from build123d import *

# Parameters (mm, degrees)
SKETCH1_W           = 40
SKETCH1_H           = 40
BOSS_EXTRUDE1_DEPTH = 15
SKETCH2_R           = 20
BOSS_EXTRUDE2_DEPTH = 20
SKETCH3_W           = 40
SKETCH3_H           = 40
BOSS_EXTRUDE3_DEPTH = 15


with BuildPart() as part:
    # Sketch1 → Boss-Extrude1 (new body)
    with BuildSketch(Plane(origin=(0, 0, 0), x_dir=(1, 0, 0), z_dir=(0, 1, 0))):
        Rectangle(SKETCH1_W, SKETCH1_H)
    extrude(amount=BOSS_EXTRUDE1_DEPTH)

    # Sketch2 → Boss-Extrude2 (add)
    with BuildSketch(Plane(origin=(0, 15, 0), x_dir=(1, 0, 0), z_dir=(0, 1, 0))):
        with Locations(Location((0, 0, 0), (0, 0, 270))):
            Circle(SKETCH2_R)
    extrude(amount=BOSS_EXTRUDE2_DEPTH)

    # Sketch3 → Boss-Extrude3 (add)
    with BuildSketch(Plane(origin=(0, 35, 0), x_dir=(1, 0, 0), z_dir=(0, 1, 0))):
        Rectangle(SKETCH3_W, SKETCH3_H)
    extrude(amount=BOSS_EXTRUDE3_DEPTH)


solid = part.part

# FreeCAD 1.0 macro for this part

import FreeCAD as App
import Part
import Sketcher
from FreeCAD import Vector


def add_polygon(sketch, points):
    """Adds a closed chain of lines whose ends are joined by coincident constraints."""
    first, n = sketch.GeometryCount, len(points)
    for a, b in zip(points, points[1:] + points[:1]):
        sketch.addGeometry(Part.LineSegment(App.Vector(*a, 0), App.Vector(*b, 0)), False)
    for i in range(n):
        sketch.addConstraint(Sketcher.Constraint("Coincident", first + i, 2, first + (i + 1) % n, 1))

doc = App.newDocument("Part")
body = doc.addObject("PartDesign::Body", "Body")

sketch1 = body.newObject("Sketcher::SketchObject", "Sketch")
sketch1.AttachmentSupport = (doc.getObject("XZ_Plane"), [""])
sketch1.MapMode = "FlatFace"
add_polygon(sketch1, [(-20, -20), (-20, 20), (20, 20), (20, -20)])
sketch1.addConstraint([
    Sketcher.Constraint("Vertical", 0),
    Sketcher.Constraint("Horizontal", 1),
    Sketcher.Constraint("Vertical", 2),
    Sketcher.Constraint("Horizontal", 3),
    Sketcher.Constraint("Symmetric", 0, 2, 2, 2, -1, 1),
    Sketcher.Constraint("Equal", 3, 0),
    Sketcher.Constraint("DistanceX", 1, 1, 1, 2, 40.0),
])
pad1 = body.newObject("PartDesign::Pad", "Pad")
pad1.Profile = sketch1
pad1.Length = 15
pad1.Reversed = True

sketch2 = body.newObject("Sketcher::SketchObject", "Sketch001")
sketch2.AttachmentSupport = (doc.getObject("XZ_Plane"), [""])
sketch2.MapMode = "FlatFace"
sketch2.AttachmentOffset = App.Placement(Vector(0, 0, -15), App.Rotation())
sketch2.addGeometry(Part.Circle(Vector(0, 0, 0), Vector(0, 0, 1), 20), False)
sketch2.addConstraint([
    Sketcher.Constraint("Coincident", 0, 3, -1, 1),
    Sketcher.Constraint("Diameter", 0, 40.0),
])
pad2 = body.newObject("PartDesign::Pad", "Pad001")
pad2.Profile = sketch2
pad2.Length = 20
pad2.Reversed = True

sketch3 = body.newObject("Sketcher::SketchObject", "Sketch002")
sketch3.AttachmentSupport = (doc.getObject("XZ_Plane"), [""])
sketch3.MapMode = "FlatFace"
sketch3.AttachmentOffset = App.Placement(Vector(0, 0, -35), App.Rotation())
add_polygon(sketch3, [(-20, -20), (-20, 20), (20, 20), (20, -20)])
sketch3.addConstraint([
    Sketcher.Constraint("Vertical", 0),
    Sketcher.Constraint("Horizontal", 1),
    Sketcher.Constraint("Vertical", 2),
    Sketcher.Constraint("Horizontal", 3),
    Sketcher.Constraint("Symmetric", 0, 2, 2, 2, -1, 1),
    Sketcher.Constraint("Equal", 3, 0),
    Sketcher.Constraint("DistanceX", 1, 1, 1, 2, 40.0),
])
pad3 = body.newObject("PartDesign::Pad", "Pad002")
pad3.Profile = sketch3
pad3.Length = 15
pad3.Reversed = True

doc.recompute()
